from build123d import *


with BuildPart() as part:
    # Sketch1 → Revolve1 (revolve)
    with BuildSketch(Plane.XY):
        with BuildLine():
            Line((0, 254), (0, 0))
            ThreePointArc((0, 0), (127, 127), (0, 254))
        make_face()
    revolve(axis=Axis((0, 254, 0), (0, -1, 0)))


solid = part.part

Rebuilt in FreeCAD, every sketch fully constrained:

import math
import FreeCAD as App
import Part
import Sketcher
Q = App.Units.Quantity

doc = App.newDocument("Part")
body = doc.addObject("PartDesign::Body", "Body")

# Sketch on XY plane
sketch1 = body.newObject("Sketcher::SketchObject", "Sketch")
sketch1.AttachmentSupport = (doc.getObject("XY_Plane"), [""])
sketch1.MapMode = "FlatFace"
sketch1.addGeometry([
    Part.LineSegment(App.Vector(0, 254, 0), App.Vector(0, 0, 0)),
    Part.ArcOfCircle(Part.Circle(App.Vector(0, 127, 0), App.Vector(0, 0, 1), 127), math.radians(-90), math.radians(90)),
], False)
sketch1.addConstraint([
    Sketcher.Constraint("Coincident", 0, 1, 1, 2),
    Sketcher.Constraint("Coincident", 1, 1, 0, 2),
    Sketcher.Constraint("Vertical", 0),
    Sketcher.Constraint("Coincident", 1, 1, -1, 1),
    Sketcher.Constraint("PointOnObject", 1, 3, -2),
    Sketcher.Constraint("Radius", 1, Q("5 in")),
])
revolution = body.newObject("PartDesign::Revolution", "Revolution")
revolution.Profile = sketch1
revolution.ReferenceAxis = (sketch1, ["V_Axis"])
revolution.Angle = 360

doc.recompute()
